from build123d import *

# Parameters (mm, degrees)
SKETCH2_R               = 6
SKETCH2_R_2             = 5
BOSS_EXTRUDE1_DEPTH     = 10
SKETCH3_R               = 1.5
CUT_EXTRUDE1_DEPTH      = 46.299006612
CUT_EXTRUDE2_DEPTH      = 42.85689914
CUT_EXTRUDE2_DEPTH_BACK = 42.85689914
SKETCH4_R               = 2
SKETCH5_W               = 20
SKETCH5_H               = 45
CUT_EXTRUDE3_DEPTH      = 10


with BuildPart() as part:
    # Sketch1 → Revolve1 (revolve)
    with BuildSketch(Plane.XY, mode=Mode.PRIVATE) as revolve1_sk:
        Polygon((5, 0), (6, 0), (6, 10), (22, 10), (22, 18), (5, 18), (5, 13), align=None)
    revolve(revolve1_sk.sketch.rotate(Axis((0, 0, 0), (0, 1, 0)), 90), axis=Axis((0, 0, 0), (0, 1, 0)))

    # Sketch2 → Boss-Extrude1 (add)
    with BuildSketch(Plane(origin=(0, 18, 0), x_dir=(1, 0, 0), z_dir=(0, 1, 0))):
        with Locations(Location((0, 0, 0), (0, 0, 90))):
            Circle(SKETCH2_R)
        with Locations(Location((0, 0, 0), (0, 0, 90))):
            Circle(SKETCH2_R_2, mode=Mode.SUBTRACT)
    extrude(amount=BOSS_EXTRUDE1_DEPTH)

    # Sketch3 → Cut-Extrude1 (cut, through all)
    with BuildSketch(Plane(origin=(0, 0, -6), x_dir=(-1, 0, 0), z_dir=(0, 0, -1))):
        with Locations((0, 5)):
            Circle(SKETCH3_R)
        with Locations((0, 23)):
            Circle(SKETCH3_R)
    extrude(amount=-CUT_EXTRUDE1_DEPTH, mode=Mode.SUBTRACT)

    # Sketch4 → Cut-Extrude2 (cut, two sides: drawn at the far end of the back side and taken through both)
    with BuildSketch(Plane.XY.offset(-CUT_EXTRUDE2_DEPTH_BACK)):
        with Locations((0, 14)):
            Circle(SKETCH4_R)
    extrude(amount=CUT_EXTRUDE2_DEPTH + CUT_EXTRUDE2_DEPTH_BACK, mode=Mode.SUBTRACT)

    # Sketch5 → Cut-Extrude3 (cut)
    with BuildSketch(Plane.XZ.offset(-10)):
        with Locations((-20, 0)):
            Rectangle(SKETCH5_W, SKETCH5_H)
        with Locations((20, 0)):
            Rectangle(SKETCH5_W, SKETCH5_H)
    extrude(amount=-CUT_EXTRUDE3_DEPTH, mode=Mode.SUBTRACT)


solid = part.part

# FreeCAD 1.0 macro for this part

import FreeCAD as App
import Part
import Sketcher
from FreeCAD import Vector


def add_polygon(sketch, points):
    """Adds a closed chain of lines whose ends are joined by coincident constraints."""
    first, n = sketch.GeometryCount, len(points)
    for a, b in zip(points, points[1:] + points[:1]):
        sketch.addGeometry(Part.LineSegment(App.Vector(*a, 0), App.Vector(*b, 0)), False)
    for i in range(n):
        sketch.addConstraint(Sketcher.Constraint("Coincident", first + i, 2, first + (i + 1) % n, 1))

doc = App.newDocument("Part")
params = doc.addObject("Spreadsheet::Sheet", "Params")
for row, (alias, value) in enumerate([
    ("sketch1_width", "1 mm"),
    ("sketch1_width2", "16 mm"),
    ("sketch1_height", "10 mm"),
    ("sketch1_height2", "8 mm"),
    ("revolution_angle", "360 deg"),
    ("sketch2_diameter", "12 mm"),
    ("sketch2_diameter2", "10 mm"),
    ("pad1_length", "10 mm"),
    ("sketch3_diameter", "3 mm"),
    ("sketch4_diameter", "4 mm"),
    ("sketch5_width", "20 mm"),
    ("sketch5_height", "45 mm"),
    ("pocket3_length", "10 mm"),
], start=1):
    params.set(f"A{row}", alias)
    params.set(f"B{row}", "=" + value)
    params.setAlias(f"B{row}", alias)

body = doc.addObject("PartDesign::Body", "Body")

# Sketch on XY plane
sketch1 = body.newObject("Sketcher::SketchObject", "Sketch")
sketch1.AttachmentSupport = (doc.getObject("XY_Plane"), [""])
sketch1.MapMode = "FlatFace"
add_polygon(sketch1, [(5, 0), (6, 0), (6, 10), (22, 10), (22, 18), (5, 18)])  # lines 0-5
sketch1.addConstraint(Sketcher.Constraint("Horizontal", 0))
sketch1.addConstraint(Sketcher.Constraint("Vertical", 1))
sketch1.addConstraint(Sketcher.Constraint("Horizontal", 2))
sketch1.addConstraint(Sketcher.Constraint("Vertical", 3))
sketch1.addConstraint(Sketcher.Constraint("Horizontal", 4))
sketch1.addConstraint(Sketcher.Constraint("Vertical", 5))
sketch1.addConstraint(Sketcher.Constraint("PointOnObject", 0, 2, -1))
sketch1.addConstraint(Sketcher.Constraint("DistanceX", 0, 1, 0, 2, 1.0))
sketch1.addConstraint(Sketcher.Constraint("DistanceX", 2, 1, 2, 2, 16.0))
sketch1.addConstraint(Sketcher.Constraint("DistanceY", 1, 1, 1, 2, 10.0))
sketch1.addConstraint(Sketcher.Constraint("DistanceY", 3, 1, 3, 2, 8.0))
sketch1.addConstraint(Sketcher.Constraint("DistanceX", -1, 1, 0, 2, 6.0))
sketch1.setExpression("Constraints[13]", "Params.sketch1_width")
sketch1.setExpression("Constraints[14]", "Params.sketch1_width2")
sketch1.setExpression("Constraints[15]", "Params.sketch1_height")
sketch1.setExpression("Constraints[16]", "Params.sketch1_height2")
revolution = body.newObject("PartDesign::Revolution", "Revolution")
revolution.Profile = sketch1
revolution.ReferenceAxis = (sketch1, ["V_Axis"])
revolution.setExpression("Angle", "Params.revolution_angle")

# Sketch on XZ plane
sketch2 = body.newObject("Sketcher::SketchObject", "Sketch001")
sketch2.AttachmentSupport = (doc.getObject("XZ_Plane"), [""])
sketch2.MapMode = "FlatFace"
sketch2.AttachmentOffset = App.Placement(Vector(0, 0, -18), App.Rotation())
sketch2.addGeometry(Part.Circle(Vector(0, 0, 0), Vector(0, 0, 1), 6), False)
sketch2.addGeometry(Part.Circle(Vector(0, 0, 0), Vector(0, 0, 1), 5), False)
sketch2.addConstraint(Sketcher.Constraint("Coincident", 0, 3, -1, 1))
sketch2.addConstraint(Sketcher.Constraint("Coincident", 1, 3, -1, 1))
sketch2.addConstraint(Sketcher.Constraint("Diameter", 0, 12.0))
sketch2.addConstraint(Sketcher.Constraint("Diameter", 1, 10.0))
sketch2.setExpression("Constraints[2]", "Params.sketch2_diameter")
sketch2.setExpression("Constraints[3]", "Params.sketch2_diameter2")
pad1 = body.newObject("PartDesign::Pad", "Pad")
pad1.Profile = sketch2
pad1.setExpression("Length", "Params.pad1_length")
pad1.Reversed = True

# Sketch on XY plane
sketch3 = body.newObject("Sketcher::SketchObject", "Sketch002")
sketch3.AttachmentSupport = (doc.getObject("XY_Plane"), [""])
sketch3.MapMode = "FlatFace"
sketch3.AttachmentOffset = App.Placement(Vector(0, 0, -6), App.Rotation())
sketch3.addGeometry(Part.Circle(Vector(0, 5, 0), Vector(0, 0, 1), 1.5), False)
sketch3.addGeometry(Part.Circle(Vector(0, 23, 0), Vector(0, 0, 1), 1.5), False)
sketch3.addConstraint(Sketcher.Constraint("Equal", 0, 1))
sketch3.addConstraint(Sketcher.Constraint("PointOnObject", 0, 3, -2))
sketch3.addConstraint(Sketcher.Constraint("PointOnObject", 1, 3, -2))
sketch3.addConstraint(Sketcher.Constraint("Diameter", 0, 3.0))
sketch3.addConstraint(Sketcher.Constraint("DistanceY", -1, 1, 0, 3, 5.0))
sketch3.addConstraint(Sketcher.Constraint("DistanceY", -1, 1, 1, 3, 23.0))
sketch3.setExpression("Constraints[3]", "Params.sketch3_diameter")
pocket1 = body.newObject("PartDesign::Pocket", "Pocket")
pocket1.Profile = sketch3
pocket1.Type = "ThroughAll"
pocket1.Reversed = True

# Sketch on XY plane
sketch4 = body.newObject("Sketcher::SketchObject", "Sketch003")
sketch4.AttachmentSupport = (doc.getObject("XY_Plane"), [""])
sketch4.MapMode = "FlatFace"
sketch4.addGeometry(Part.Circle(Vector(0, 14, 0), Vector(0, 0, 1), 2), False)
sketch4.addConstraint(Sketcher.Constraint("PointOnObject", 0, 3, -2))
sketch4.addConstraint(Sketcher.Constraint("Diameter", 0, 4.0))
sketch4.addConstraint(Sketcher.Constraint("DistanceY", -1, 1, 0, 3, 14.0))
sketch4.setExpression("Constraints[1]", "Params.sketch4_diameter")
pocket2 = body.newObject("PartDesign::Pocket", "Pocket001")
pocket2.Profile = sketch4
pocket2.Type = "ThroughAll"
pocket2.Midplane = True

# Sketch on XZ plane
sketch5 = body.newObject("Sketcher::SketchObject", "Sketch004")
sketch5.AttachmentSupport = (doc.getObject("XZ_Plane"), [""])
sketch5.MapMode = "FlatFace"
sketch5.AttachmentOffset = App.Placement(Vector(0, 0, -10), App.Rotation())
add_polygon(sketch5, [(-30, 22), (-30, -22), (-10, -22), (-10, 22)])  # lines 0-3
add_polygon(sketch5, [(10, 22), (10, -22), (30, -22), (30, 22)])  # lines 4-7
sketch5.addConstraint(Sketcher.Constraint("Vertical", 0))
sketch5.addConstraint(Sketcher.Constraint("Horizontal", 1))
sketch5.addConstraint(Sketcher.Constraint("Vertical", 2))
sketch5.addConstraint(Sketcher.Constraint("Horizontal", 3))
sketch5.addConstraint(Sketcher.Constraint("Vertical", 4))
sketch5.addConstraint(Sketcher.Constraint("Horizontal", 5))
sketch5.addConstraint(Sketcher.Constraint("Vertical", 6))
sketch5.addConstraint(Sketcher.Constraint("Horizontal", 7))
sketch5.addConstraint(Sketcher.Constraint("Symmetric", 2, 2, 4, 2, -1, 1))
sketch5.addConstraint(Sketcher.Constraint("Symmetric", 0, 2, 6, 2, -1, 1))
sketch5.addConstraint(Sketcher.Constraint("Horizontal", 1, 2, 4, 2))
sketch5.addConstraint(Sketcher.Constraint("DistanceX", 1, 1, 1, 2, 20.0))
sketch5.addConstraint(Sketcher.Constraint("DistanceY", 0, 2, 0, 1, 45.0))
sketch5.addConstraint(Sketcher.Constraint("DistanceX", 0, 2, -1, 1, 30.0))
sketch5.setExpression("Constraints[19]", "Params.sketch5_width")
sketch5.setExpression("Constraints[20]", "Params.sketch5_height")
pocket3 = body.newObject("PartDesign::Pocket", "Pocket002")
pocket3.Profile = sketch5
pocket3.setExpression("Length", "Params.pocket3_length")

doc.recompute()
